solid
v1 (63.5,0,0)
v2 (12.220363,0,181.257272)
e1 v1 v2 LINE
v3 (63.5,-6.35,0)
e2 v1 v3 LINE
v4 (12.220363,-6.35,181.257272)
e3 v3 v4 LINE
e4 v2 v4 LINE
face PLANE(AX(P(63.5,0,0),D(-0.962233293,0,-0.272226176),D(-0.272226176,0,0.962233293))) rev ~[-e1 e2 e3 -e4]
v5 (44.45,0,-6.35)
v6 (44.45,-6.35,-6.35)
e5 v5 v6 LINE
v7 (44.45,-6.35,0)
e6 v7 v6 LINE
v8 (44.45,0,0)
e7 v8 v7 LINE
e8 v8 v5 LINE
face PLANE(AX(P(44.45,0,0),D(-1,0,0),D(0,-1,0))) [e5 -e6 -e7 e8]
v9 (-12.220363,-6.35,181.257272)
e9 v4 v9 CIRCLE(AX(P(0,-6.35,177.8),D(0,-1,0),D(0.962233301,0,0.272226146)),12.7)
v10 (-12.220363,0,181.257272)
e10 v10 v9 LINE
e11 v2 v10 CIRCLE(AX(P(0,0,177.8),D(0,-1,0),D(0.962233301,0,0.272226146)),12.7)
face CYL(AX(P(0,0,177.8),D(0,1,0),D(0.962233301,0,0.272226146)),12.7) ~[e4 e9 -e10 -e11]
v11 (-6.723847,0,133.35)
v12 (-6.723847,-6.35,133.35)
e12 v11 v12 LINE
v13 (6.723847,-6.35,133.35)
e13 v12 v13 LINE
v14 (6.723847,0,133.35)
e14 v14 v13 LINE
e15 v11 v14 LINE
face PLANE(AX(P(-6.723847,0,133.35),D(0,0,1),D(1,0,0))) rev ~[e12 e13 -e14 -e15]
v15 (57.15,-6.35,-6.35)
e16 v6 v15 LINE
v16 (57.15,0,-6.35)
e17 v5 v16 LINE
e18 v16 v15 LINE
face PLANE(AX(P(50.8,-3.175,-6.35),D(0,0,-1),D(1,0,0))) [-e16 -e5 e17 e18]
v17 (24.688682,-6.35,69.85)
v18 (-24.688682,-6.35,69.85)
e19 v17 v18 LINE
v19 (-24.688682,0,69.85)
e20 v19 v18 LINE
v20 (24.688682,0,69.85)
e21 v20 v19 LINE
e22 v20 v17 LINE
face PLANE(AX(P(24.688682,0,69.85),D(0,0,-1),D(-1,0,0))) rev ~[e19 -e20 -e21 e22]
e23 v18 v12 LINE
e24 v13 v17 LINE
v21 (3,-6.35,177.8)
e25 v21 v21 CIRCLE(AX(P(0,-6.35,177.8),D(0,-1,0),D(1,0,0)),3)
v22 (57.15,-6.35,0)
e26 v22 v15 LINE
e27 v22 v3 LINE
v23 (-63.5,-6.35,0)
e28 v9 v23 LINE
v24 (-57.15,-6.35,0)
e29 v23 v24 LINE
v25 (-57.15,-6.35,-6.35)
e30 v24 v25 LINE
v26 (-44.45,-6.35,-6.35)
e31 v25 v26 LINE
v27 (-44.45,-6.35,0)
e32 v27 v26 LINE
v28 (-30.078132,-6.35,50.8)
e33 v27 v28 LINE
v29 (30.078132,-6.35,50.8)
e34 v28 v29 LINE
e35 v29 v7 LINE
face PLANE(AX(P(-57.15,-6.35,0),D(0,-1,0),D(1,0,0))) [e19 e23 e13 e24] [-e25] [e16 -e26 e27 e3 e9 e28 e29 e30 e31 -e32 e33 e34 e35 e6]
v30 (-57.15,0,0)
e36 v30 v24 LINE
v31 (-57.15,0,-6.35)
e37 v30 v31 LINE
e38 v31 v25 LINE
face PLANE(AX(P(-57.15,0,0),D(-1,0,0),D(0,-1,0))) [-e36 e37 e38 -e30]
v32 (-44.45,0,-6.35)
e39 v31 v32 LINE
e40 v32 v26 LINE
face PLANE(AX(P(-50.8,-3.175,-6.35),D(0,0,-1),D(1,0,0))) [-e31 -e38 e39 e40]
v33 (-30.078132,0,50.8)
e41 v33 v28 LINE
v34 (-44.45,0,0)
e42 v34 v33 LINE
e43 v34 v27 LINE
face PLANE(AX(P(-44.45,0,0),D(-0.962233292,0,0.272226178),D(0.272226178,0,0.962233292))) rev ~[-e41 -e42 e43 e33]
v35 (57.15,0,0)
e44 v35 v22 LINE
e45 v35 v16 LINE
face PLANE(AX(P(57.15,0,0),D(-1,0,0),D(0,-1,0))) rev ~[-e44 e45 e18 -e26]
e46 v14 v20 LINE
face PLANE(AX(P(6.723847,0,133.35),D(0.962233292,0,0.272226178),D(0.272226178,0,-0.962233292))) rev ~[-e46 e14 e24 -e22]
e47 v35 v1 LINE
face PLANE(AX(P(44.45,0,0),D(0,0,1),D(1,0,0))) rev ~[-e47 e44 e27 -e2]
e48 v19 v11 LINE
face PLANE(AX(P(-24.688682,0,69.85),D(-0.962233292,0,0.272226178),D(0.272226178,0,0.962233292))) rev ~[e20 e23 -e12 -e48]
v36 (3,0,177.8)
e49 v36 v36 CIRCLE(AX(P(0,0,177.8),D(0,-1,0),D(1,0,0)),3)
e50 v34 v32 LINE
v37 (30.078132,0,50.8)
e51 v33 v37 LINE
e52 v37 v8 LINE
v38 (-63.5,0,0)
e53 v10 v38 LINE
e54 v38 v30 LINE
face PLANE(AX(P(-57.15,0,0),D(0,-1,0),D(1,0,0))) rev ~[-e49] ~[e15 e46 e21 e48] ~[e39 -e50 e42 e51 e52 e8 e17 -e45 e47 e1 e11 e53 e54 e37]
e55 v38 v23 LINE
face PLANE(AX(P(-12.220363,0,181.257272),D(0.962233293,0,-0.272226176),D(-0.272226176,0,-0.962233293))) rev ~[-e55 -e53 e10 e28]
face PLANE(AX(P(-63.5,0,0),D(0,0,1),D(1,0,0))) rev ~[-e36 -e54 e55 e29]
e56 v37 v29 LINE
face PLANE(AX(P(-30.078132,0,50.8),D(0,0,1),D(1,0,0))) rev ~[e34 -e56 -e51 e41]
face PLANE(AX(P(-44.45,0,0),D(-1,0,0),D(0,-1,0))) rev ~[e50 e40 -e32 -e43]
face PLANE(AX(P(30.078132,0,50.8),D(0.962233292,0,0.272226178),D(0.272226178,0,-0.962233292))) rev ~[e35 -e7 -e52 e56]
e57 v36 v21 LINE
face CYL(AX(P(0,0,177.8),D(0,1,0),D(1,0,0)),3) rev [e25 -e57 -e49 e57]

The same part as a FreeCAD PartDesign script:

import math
import FreeCAD as App
import Part
import Sketcher
Q = App.Units.Quantity

doc = App.newDocument("Part")
body = doc.addObject("PartDesign::Body", "Body")

sketch1 = doc.addObject("Sketcher::SketchObject", "Sketch")
body.addObject(sketch1)
sketch1.AttachmentSupport = (doc.XZ_Plane, [""])
sketch1.MapMode = "FlatFace"
sketch1.addGeometry(Part.LineSegment(App.Vector(63.5, 0, 0), App.Vector(12.220363, 181.257272, 0)), False)
sketch1.addGeometry(Part.ArcOfCircle(Part.Circle(App.Vector(0, 177.8, 0), App.Vector(0, 0, 1), 12.7), math.radians(15.796779), math.radians(164.203221)), False)
sketch1.addGeometry(Part.LineSegment(App.Vector(-12.220363, 181.257272, 0), App.Vector(-63.5, 0, 0)), False)
sketch1.addGeometry(Part.LineSegment(App.Vector(-63.5, 0, 0), App.Vector(-44.45, 0, 0)), False)
sketch1.addGeometry(Part.LineSegment(App.Vector(-44.45, 0, 0), App.Vector(-30.078132, 50.8, 0)), False)
sketch1.addGeometry(Part.LineSegment(App.Vector(-30.078132, 50.8, 0), App.Vector(30.078132, 50.8, 0)), False)
sketch1.addGeometry(Part.LineSegment(App.Vector(30.078132, 50.8, 0), App.Vector(44.45, 0, 0)), False)
sketch1.addGeometry(Part.LineSegment(App.Vector(44.45, 0, 0), App.Vector(63.5, 0, 0)), False)
sketch1.addGeometry(Part.LineSegment(App.Vector(6.723847, 133.35, 0), App.Vector(24.688682, 69.85, 0)), False)
sketch1.addGeometry(Part.LineSegment(App.Vector(24.688682, 69.85, 0), App.Vector(-24.688682, 69.85, 0)), False)
sketch1.addGeometry(Part.LineSegment(App.Vector(-24.688682, 69.85, 0), App.Vector(-6.723847, 133.35, 0)), False)
sketch1.addGeometry(Part.LineSegment(App.Vector(-6.723847, 133.35, 0), App.Vector(6.723847, 133.35, 0)), False)
sketch1.addGeometry(Part.Circle(App.Vector(0, 177.8, 0), App.Vector(0, 0, 1), 3), False)
sketch1.addConstraint(Sketcher.Constraint("Tangent", 0, 2, 1, 1))
sketch1.addConstraint(Sketcher.Constraint("Tangent", 1, 2, 2, 1))
sketch1.addConstraint(Sketcher.Constraint("Coincident", 2, 2, 3, 1))
sketch1.addConstraint(Sketcher.Constraint("Coincident", 3, 2, 4, 1))
sketch1.addConstraint(Sketcher.Constraint("Coincident", 4, 2, 5, 1))
sketch1.addConstraint(Sketcher.Constraint("Coincident", 5, 2, 6, 1))
sketch1.addConstraint(Sketcher.Constraint("Coincident", 6, 2, 7, 1))
sketch1.addConstraint(Sketcher.Constraint("Coincident", 7, 2, 0, 1))
sketch1.addConstraint(Sketcher.Constraint("Coincident", 8, 2, 9, 1))
sketch1.addConstraint(Sketcher.Constraint("Coincident", 9, 2, 10, 1))
sketch1.addConstraint(Sketcher.Constraint("Coincident", 10, 2, 11, 1))
sketch1.addConstraint(Sketcher.Constraint("Coincident", 11, 2, 8, 1))
sketch1.addConstraint(Sketcher.Constraint("Horizontal", 3))
sketch1.addConstraint(Sketcher.Constraint("Horizontal", 5))
sketch1.addConstraint(Sketcher.Constraint("Horizontal", 7))
sketch1.addConstraint(Sketcher.Constraint("Horizontal", 9))
sketch1.addConstraint(Sketcher.Constraint("Horizontal", 11))
sketch1.addConstraint(Sketcher.Constraint("Coincident", 12, 3, 1, 3))
sketch1.addConstraint(Sketcher.Constraint("Symmetric", 3, 2, 6, 2, -1, 1))
sketch1.addConstraint(Sketcher.Constraint("Symmetric", 0, 2, 1, 2, -2))
sketch1.addConstraint(Sketcher.Constraint("PointOnObject", 2, 2, -1))
sketch1.addConstraint(Sketcher.Constraint("Parallel", 2, 4))
sketch1.addConstraint(Sketcher.Constraint("Parallel", 0, 6))
sketch1.addConstraint(Sketcher.Constraint("Parallel", 6, 8))
sketch1.addConstraint(Sketcher.Constraint("Parallel", 4, 10))
sketch1.addConstraint(Sketcher.Constraint("Radius", 1, Q("0.5 in")))
sketch1.addConstraint(Sketcher.Constraint("DistanceY", -1, 1, 1, 3, Q("7 in")))
sketch1.addConstraint(Sketcher.Constraint("DistanceY", -1, 1, 4, 2, Q("2 in")))
sketch1.addConstraint(Sketcher.Constraint("DistanceX", 2, 2, 7, 2, Q("5 in")))
sketch1.addConstraint(Sketcher.Constraint("DistanceX", 3, 1, 3, 2, Q("0.75 in")))
sketch1.addConstraint(Sketcher.Constraint("DistanceY", 9, 2, 10, 2, Q("2.5 in")))
sketch1.addConstraint(Sketcher.Constraint("Diameter", 12, Q("6 mm")))
sketch1.addConstraint(Sketcher.Constraint("DistanceY", -1, 1, 8, 2, Q("2.75 in")))
sketch1.addConstraint(Sketcher.Constraint("DistanceX", 9, 2, 9, 1, Q("49.377364 mm")))
sketch1.addConstraint(Sketcher.Constraint("DistanceX", -1, 1, 8, 2, Q("24.688682 mm")))
pad1 = doc.addObject("PartDesign::Pad", "Pad")
body.addObject(pad1)
pad1.Profile = sketch1
pad1.Length = Q("0.25 in")

sketch2 = doc.addObject("Sketcher::SketchObject", "Sketch001")
body.addObject(sketch2)
sketch2.AttachmentSupport = (doc.XY_Plane, [""])
sketch2.MapMode = "FlatFace"
sketch2.addGeometry(Part.LineSegment(App.Vector(-57.15, -6.35, 0), App.Vector(-57.15, 0, 0)), False)
sketch2.addGeometry(Part.LineSegment(App.Vector(-57.15, 0, 0), App.Vector(-44.45, 0, 0)), False)
sketch2.addGeometry(Part.LineSegment(App.Vector(-44.45, 0, 0), App.Vector(-44.45, -6.35, 0)), False)
sketch2.addGeometry(Part.LineSegment(App.Vector(-44.45, -6.35, 0), App.Vector(-57.15, -6.35, 0)), False)
sketch2.addGeometry(Part.LineSegment(App.Vector(44.45, -6.35, 0), App.Vector(44.45, 0, 0)), False)
sketch2.addGeometry(Part.LineSegment(App.Vector(44.45, 0, 0), App.Vector(57.15, 0, 0)), False)
sketch2.addGeometry(Part.LineSegment(App.Vector(57.15, 0, 0), App.Vector(57.15, -6.35, 0)), False)
sketch2.addGeometry(Part.LineSegment(App.Vector(57.15, -6.35, 0), App.Vector(44.45, -6.35, 0)), False)
sketch2.addConstraint(Sketcher.Constraint("Coincident", 0, 2, 1, 1))
sketch2.addConstraint(Sketcher.Constraint("Coincident", 1, 2, 2, 1))
sketch2.addConstraint(Sketcher.Constraint("Coincident", 2, 2, 3, 1))
sketch2.addConstraint(Sketcher.Constraint("Coincident", 3, 2, 0, 1))
sketch2.addConstraint(Sketcher.Constraint("Coincident", 4, 2, 5, 1))
sketch2.addConstraint(Sketcher.Constraint("Coincident", 5, 2, 6, 1))
sketch2.addConstraint(Sketcher.Constraint("Coincident", 6, 2, 7, 1))
sketch2.addConstraint(Sketcher.Constraint("Coincident", 7, 2, 4, 1))
sketch2.addConstraint(Sketcher.Constraint("Vertical", 0))
sketch2.addConstraint(Sketcher.Constraint("Horizontal", 1))
sketch2.addConstraint(Sketcher.Constraint("Vertical", 2))
sketch2.addConstraint(Sketcher.Constraint("Horizontal", 3))
sketch2.addConstraint(Sketcher.Constraint("Vertical", 4))
sketch2.addConstraint(Sketcher.Constraint("Horizontal", 5))
sketch2.addConstraint(Sketcher.Constraint("Vertical", 6))
sketch2.addConstraint(Sketcher.Constraint("Horizontal", 7))
sketch2.addConstraint(Sketcher.Constraint("Symmetric", 1, 2, 4, 2, -1, 1))
sketch2.addConstraint(Sketcher.Constraint("Symmetric", 0, 2, 5, 2, -2))
sketch2.addConstraint(Sketcher.Constraint("Horizontal", 3, 2, 6, 2))
sketch2.addConstraint(Sketcher.Constraint("DistanceX", 1, 1, 1, 2, Q("0.5 in")))
sketch2.addConstraint(Sketcher.Constraint("DistanceX", 0, 2, 4, 2, Q("4 in")))
sketch2.addConstraint(Sketcher.Constraint("DistanceY", 0, 1, 0, 2, Q("0.25 in")))
pad2 = doc.addObject("PartDesign::Pad", "Pad001")
body.addObject(pad2)
pad2.Profile = sketch2
pad2.Length = Q("0.25 in")
pad2.Reversed = True

doc.recompute()
